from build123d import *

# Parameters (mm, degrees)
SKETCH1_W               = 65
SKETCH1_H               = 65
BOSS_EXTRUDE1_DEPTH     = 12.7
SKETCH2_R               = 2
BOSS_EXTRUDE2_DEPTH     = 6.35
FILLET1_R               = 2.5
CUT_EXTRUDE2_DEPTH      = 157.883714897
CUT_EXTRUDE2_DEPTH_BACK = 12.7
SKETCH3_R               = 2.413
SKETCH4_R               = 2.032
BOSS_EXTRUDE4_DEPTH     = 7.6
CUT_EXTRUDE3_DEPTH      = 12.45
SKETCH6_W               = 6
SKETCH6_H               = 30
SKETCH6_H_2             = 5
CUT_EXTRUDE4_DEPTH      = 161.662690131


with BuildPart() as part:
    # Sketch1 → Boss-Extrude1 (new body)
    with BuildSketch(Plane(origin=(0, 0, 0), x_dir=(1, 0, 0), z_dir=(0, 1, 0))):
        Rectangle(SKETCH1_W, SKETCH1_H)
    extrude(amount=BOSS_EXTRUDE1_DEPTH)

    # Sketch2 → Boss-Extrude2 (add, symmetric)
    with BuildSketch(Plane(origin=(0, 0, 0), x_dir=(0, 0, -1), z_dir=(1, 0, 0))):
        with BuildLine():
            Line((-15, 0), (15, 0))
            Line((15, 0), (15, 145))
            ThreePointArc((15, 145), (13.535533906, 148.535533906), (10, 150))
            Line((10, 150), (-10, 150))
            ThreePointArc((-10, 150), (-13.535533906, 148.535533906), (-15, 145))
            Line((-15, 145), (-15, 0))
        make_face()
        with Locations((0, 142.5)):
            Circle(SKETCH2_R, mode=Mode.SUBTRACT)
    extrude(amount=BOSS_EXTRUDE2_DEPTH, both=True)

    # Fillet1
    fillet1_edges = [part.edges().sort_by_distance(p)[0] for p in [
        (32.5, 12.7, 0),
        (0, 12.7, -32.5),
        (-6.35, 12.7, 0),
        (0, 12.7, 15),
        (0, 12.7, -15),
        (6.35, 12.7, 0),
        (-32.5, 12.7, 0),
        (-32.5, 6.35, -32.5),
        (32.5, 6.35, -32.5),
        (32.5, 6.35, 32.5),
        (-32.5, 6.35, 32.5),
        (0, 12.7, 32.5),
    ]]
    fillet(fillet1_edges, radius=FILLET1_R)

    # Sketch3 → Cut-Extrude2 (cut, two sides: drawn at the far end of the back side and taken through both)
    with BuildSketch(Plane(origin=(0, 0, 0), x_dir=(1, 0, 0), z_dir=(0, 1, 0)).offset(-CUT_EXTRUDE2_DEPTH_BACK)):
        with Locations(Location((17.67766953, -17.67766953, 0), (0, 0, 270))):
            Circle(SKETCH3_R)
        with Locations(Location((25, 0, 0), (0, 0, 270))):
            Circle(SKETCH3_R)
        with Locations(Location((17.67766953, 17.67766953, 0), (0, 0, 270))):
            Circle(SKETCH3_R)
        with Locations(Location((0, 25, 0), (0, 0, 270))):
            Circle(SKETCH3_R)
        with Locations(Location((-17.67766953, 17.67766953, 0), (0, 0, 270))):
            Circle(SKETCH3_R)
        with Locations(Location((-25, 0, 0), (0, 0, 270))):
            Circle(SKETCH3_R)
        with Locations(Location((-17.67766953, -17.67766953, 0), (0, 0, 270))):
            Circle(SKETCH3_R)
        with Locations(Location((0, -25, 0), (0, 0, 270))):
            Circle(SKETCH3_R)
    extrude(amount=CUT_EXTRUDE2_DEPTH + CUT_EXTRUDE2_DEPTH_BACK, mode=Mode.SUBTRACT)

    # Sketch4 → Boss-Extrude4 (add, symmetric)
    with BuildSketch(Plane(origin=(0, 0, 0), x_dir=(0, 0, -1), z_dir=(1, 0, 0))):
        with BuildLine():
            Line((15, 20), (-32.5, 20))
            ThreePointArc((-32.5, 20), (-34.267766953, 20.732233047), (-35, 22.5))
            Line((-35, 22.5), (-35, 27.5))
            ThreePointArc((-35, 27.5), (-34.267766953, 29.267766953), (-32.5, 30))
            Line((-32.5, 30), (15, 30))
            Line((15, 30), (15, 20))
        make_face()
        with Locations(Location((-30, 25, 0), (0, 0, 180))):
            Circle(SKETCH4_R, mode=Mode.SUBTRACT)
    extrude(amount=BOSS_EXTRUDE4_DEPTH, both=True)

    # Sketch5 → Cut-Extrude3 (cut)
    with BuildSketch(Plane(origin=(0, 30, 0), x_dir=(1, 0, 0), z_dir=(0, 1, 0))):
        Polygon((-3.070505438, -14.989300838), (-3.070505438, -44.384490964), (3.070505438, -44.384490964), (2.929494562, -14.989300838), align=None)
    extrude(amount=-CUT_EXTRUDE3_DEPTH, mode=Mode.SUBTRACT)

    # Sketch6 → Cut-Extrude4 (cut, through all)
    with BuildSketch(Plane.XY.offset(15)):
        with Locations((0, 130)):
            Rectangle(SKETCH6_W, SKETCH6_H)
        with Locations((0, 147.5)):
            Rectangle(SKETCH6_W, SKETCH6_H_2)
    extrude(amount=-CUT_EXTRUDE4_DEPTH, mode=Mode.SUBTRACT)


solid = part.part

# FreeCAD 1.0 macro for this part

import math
import FreeCAD as App
import Part
import Sketcher


def edges_at(feature, points):
    """Names of the edges that pass closest to the given points."""
    edges = feature.Shape.Edges
    near = lambda p: min(range(len(edges)), key=lambda i: edges[i].distToShape(Part.Vertex(*p))[0])
    return sorted({f"Edge{near(p) + 1}" for p in points})

doc = App.newDocument("Part")
body = doc.addObject("PartDesign::Body", "Body")

sketch1 = body.newObject("Sketcher::SketchObject", "Sketch")
sketch1.AttachmentSupport = (doc.getObject("XZ_Plane"), [""])
sketch1.MapMode = "FlatFace"
sketch1.addGeometry(Part.LineSegment(App.Vector(-32, -32, 0), App.Vector(-32, 32, 0)), False)
sketch1.addGeometry(Part.LineSegment(App.Vector(-32, 32, 0), App.Vector(32, 32, 0)), False)
sketch1.addGeometry(Part.LineSegment(App.Vector(32, 32, 0), App.Vector(32, -32, 0)), False)
sketch1.addGeometry(Part.LineSegment(App.Vector(32, -32, 0), App.Vector(-32, -32, 0)), False)
sketch1.addConstraint(Sketcher.Constraint("Coincident", 0, 2, 1, 1))
sketch1.addConstraint(Sketcher.Constraint("Coincident", 1, 2, 2, 1))
sketch1.addConstraint(Sketcher.Constraint("Coincident", 2, 2, 3, 1))
sketch1.addConstraint(Sketcher.Constraint("Coincident", 3, 2, 0, 1))
sketch1.addConstraint(Sketcher.Constraint("Vertical", 0))
sketch1.addConstraint(Sketcher.Constraint("Horizontal", 1))
sketch1.addConstraint(Sketcher.Constraint("Vertical", 2))
sketch1.addConstraint(Sketcher.Constraint("Horizontal", 3))
sketch1.addConstraint(Sketcher.Constraint("Symmetric", 0, 2, 2, 2, -1, 1))
sketch1.addConstraint(Sketcher.Constraint("Equal", 3, 0))
sketch1.addConstraint(Sketcher.Constraint("DistanceX", 1, 1, 1, 2, 65.0))
pad1 = body.newObject("PartDesign::Pad", "Pad")
pad1.Profile = sketch1
pad1.Length = 12.7
pad1.Reversed = True

sketch2 = body.newObject("Sketcher::SketchObject", "Sketch001")
sketch2.AttachmentSupport = (doc.getObject("YZ_Plane"), [""])
sketch2.MapMode = "FlatFace"
sketch2.addGeometry(Part.LineSegment(App.Vector(0, 15, 0), App.Vector(0, -15, 0)), False)
sketch2.addGeometry(Part.LineSegment(App.Vector(0, -15, 0), App.Vector(145, -15, 0)), False)
sketch2.addGeometry(Part.ArcOfCircle(Part.Circle(App.Vector(145, -10, 0), App.Vector(0, 0, 1), 5), math.radians(-90), math.radians(0)), False)
sketch2.addGeometry(Part.LineSegment(App.Vector(150, -10, 0), App.Vector(150, 10, 0)), False)
sketch2.addGeometry(Part.ArcOfCircle(Part.Circle(App.Vector(145, 10, 0), App.Vector(0, 0, 1), 5), math.radians(0), math.radians(90)), False)
sketch2.addGeometry(Part.LineSegment(App.Vector(145, 15, 0), App.Vector(0, 15, 0)), False)
sketch2.addGeometry(Part.Circle(App.Vector(142.5, 0, 0), App.Vector(0, 0, 1), 2), False)
sketch2.addConstraint(Sketcher.Constraint("Coincident", 0, 2, 1, 1))
sketch2.addConstraint(Sketcher.Constraint("Tangent", 1, 2, 2, 1))
sketch2.addConstraint(Sketcher.Constraint("Tangent", 2, 2, 3, 1))
sketch2.addConstraint(Sketcher.Constraint("Tangent", 3, 2, 4, 1))
sketch2.addConstraint(Sketcher.Constraint("Tangent", 4, 2, 5, 1))
sketch2.addConstraint(Sketcher.Constraint("Coincident", 5, 2, 0, 1))
sketch2.addConstraint(Sketcher.Constraint("Vertical", 0))
sketch2.addConstraint(Sketcher.Constraint("Horizontal", 1))
sketch2.addConstraint(Sketcher.Constraint("Vertical", 3))
sketch2.addConstraint(Sketcher.Constraint("Horizontal", 5))
sketch2.addConstraint(Sketcher.Constraint("Equal", 2, 4))
sketch2.addConstraint(Sketcher.Constraint("Symmetric", 0, 2, 5, 2, -1, 1))
sketch2.addConstraint(Sketcher.Constraint("PointOnObject", 6, 3, -1))
sketch2.addConstraint(Sketcher.Constraint("Diameter", 6, 4.0))
sketch2.addConstraint(Sketcher.Constraint("Radius", 2, 5.0))
sketch2.addConstraint(Sketcher.Constraint("DistanceX", 1, 1, 1, 2, 145.0))
sketch2.addConstraint(Sketcher.Constraint("DistanceY", 0, 2, 0, 1, 30.0))
sketch2.addConstraint(Sketcher.Constraint("DistanceX", -1, 1, 6, 3, 142.5))
pad2 = body.newObject("PartDesign::Pad", "Pad001")
pad2.Profile = sketch2
pad2.Length = 12.7
pad2.Midplane = True
doc.recompute()

fillet = body.newObject("PartDesign::Fillet", "Fillet")
fillet.Base = (pad2, edges_at(pad2, [
    (32.5, 12.7, 0),
    (0, 12.7, -32.5),
    (-6.35, 12.7, 0),
    (0, 12.7, 15),
    (0, 12.7, -15),
    (6.35, 12.7, 0),
    (-32.5, 12.7, 0),
    (-32.5, 6.35, -32.5),
    (32.5, 6.35, -32.5),
    (32.5, 6.35, 32.5),
    (-32.5, 6.35, 32.5),
    (0, 12.7, 32.5),
]))
fillet.Radius = 2.5

sketch3 = body.newObject("Sketcher::SketchObject", "Sketch002")
sketch3.AttachmentSupport = (doc.getObject("XZ_Plane"), [""])
sketch3.MapMode = "FlatFace"
sketch3.addGeometry(Part.Circle(App.Vector(17.7, 17.7, 0), App.Vector(0, 0, 1), 2.4), False)
sketch3.addGeometry(Part.Circle(App.Vector(25, 0, 0), App.Vector(0, 0, 1), 2.4), False)
sketch3.addGeometry(Part.Circle(App.Vector(17.7, -17.7, 0), App.Vector(0, 0, 1), 2.4), False)
sketch3.addGeometry(Part.Circle(App.Vector(0, -25, 0), App.Vector(0, 0, 1), 2.4), False)
sketch3.addGeometry(Part.Circle(App.Vector(-17.7, -17.7, 0), App.Vector(0, 0, 1), 2.4), False)
sketch3.addGeometry(Part.Circle(App.Vector(-25, 0, 0), App.Vector(0, 0, 1), 2.4), False)
sketch3.addGeometry(Part.Circle(App.Vector(-17.7, 17.7, 0), App.Vector(0, 0, 1), 2.4), False)
sketch3.addGeometry(Part.Circle(App.Vector(0, 25, 0), App.Vector(0, 0, 1), 2.4), False)
sketch3.addConstraint(Sketcher.Constraint("Equal", 0, 1))
sketch3.addConstraint(Sketcher.Constraint("Equal", 1, 2))
sketch3.addConstraint(Sketcher.Constraint("Equal", 2, 3))
sketch3.addConstraint(Sketcher.Constraint("Equal", 3, 4))
sketch3.addConstraint(Sketcher.Constraint("Equal", 4, 5))
sketch3.addConstraint(Sketcher.Constraint("Equal", 5, 6))
sketch3.addConstraint(Sketcher.Constraint("Equal", 6, 7))
sketch3.addConstraint(Sketcher.Constraint("Symmetric", 0, 3, 4, 3, -1, 1))
sketch3.addConstraint(Sketcher.Constraint("Symmetric", 1, 3, 5, 3, -1, 1))
sketch3.addConstraint(Sketcher.Constraint("Symmetric", 2, 3, 6, 3, -1, 1))
sketch3.addConstraint(Sketcher.Constraint("Symmetric", 3, 3, 7, 3, -1, 1))
sketch3.addConstraint(Sketcher.Constraint("Symmetric", 2, 3, 4, 3, -2))
sketch3.addConstraint(Sketcher.Constraint("PointOnObject", 1, 3, -1))
sketch3.addConstraint(Sketcher.Constraint("PointOnObject", 3, 3, -2))
sketch3.addConstraint(Sketcher.Constraint("Diameter", 0, 4.826))
sketch3.addConstraint(Sketcher.Constraint("DistanceX", -1, 1, 1, 3, 25.0))
sketch3.addConstraint(Sketcher.Constraint("DistanceY", 3, 3, -1, 1, 25.0))
sketch3.addConstraint(Sketcher.Constraint("DistanceX", -1, 1, 0, 3, 17.67767))
sketch3.addConstraint(Sketcher.Constraint("DistanceY", -1, 1, 0, 3, 17.67767))
pocket1 = body.newObject("PartDesign::Pocket", "Pocket")
pocket1.Profile = sketch3
pocket1.Type = "ThroughAll"
pocket1.Midplane = True

sketch4 = body.newObject("Sketcher::SketchObject", "Sketch003")
sketch4.AttachmentSupport = (doc.getObject("YZ_Plane"), [""])
sketch4.MapMode = "FlatFace"
sketch4.addGeometry(Part.LineSegment(App.Vector(20, 32.5, 0), App.Vector(20, -15, 0)), False)
sketch4.addGeometry(Part.LineSegment(App.Vector(20, -15, 0), App.Vector(30, -15, 0)), False)
sketch4.addGeometry(Part.LineSegment(App.Vector(30, -15, 0), App.Vector(30, 32.5, 0)), False)
sketch4.addGeometry(Part.ArcOfCircle(Part.Circle(App.Vector(27.5, 32.5, 0), App.Vector(0, 0, 1), 2.5), math.radians(0), math.radians(90)), False)
sketch4.addGeometry(Part.LineSegment(App.Vector(27.5, 35, 0), App.Vector(22.5, 35, 0)), False)
sketch4.addGeometry(Part.ArcOfCircle(Part.Circle(App.Vector(22.5, 32.5, 0), App.Vector(0, 0, 1), 2.5), math.radians(90), math.radians(180)), False)
sketch4.addGeometry(Part.Circle(App.Vector(25, 30, 0), App.Vector(0, 0, 1), 2), False)
sketch4.addConstraint(Sketcher.Constraint("Coincident", 0, 2, 1, 1))
sketch4.addConstraint(Sketcher.Constraint("Coincident", 1, 2, 2, 1))
sketch4.addConstraint(Sketcher.Constraint("Tangent", 2, 2, 3, 1))
sketch4.addConstraint(Sketcher.Constraint("Tangent", 3, 2, 4, 1))
sketch4.addConstraint(Sketcher.Constraint("Tangent", 4, 2, 5, 1))
sketch4.addConstraint(Sketcher.Constraint("Tangent", 5, 2, 0, 1))
sketch4.addConstraint(Sketcher.Constraint("Vertical", 0))
sketch4.addConstraint(Sketcher.Constraint("Horizontal", 1))
sketch4.addConstraint(Sketcher.Constraint("Vertical", 2))
sketch4.addConstraint(Sketcher.Constraint("Horizontal", 4))
sketch4.addConstraint(Sketcher.Constraint("Equal", 3, 5))
sketch4.addConstraint(Sketcher.Constraint("Radius", 3, 2.5))
sketch4.addConstraint(Sketcher.Constraint("DistanceX", 1, 1, 1, 2, 10.0))
sketch4.addConstraint(Sketcher.Constraint("Diameter", 6, 4.064))
sketch4.addConstraint(Sketcher.Constraint("DistanceY", 0, 2, 0, 1, 47.5))
sketch4.addConstraint(Sketcher.Constraint("DistanceX", -1, 1, 6, 3, 25.0))
sketch4.addConstraint(Sketcher.Constraint("DistanceY", -1, 1, 6, 3, 30.0))
sketch4.addConstraint(Sketcher.Constraint("DistanceX", -1, 1, 0, 2, 20.0))
sketch4.addConstraint(Sketcher.Constraint("DistanceY", 0, 2, -1, 1, 15.0))
pad3 = body.newObject("PartDesign::Pad", "Pad002")
pad3.Profile = sketch4
pad3.Length = 15.2
pad3.Midplane = True

sketch5 = body.newObject("Sketcher::SketchObject", "Sketch004")
sketch5.AttachmentSupport = (doc.getObject("XZ_Plane"), [""])
sketch5.MapMode = "FlatFace"
sketch5.AttachmentOffset = App.Placement(App.Vector(0, 0, -30), App.Rotation())
sketch5.addGeometry(Part.LineSegment(App.Vector(-3, 15, 0), App.Vector(-3, 44, 0)), False)
sketch5.addGeometry(Part.LineSegment(App.Vector(-3, 44, 0), App.Vector(3, 44, 0)), False)
sketch5.addGeometry(Part.LineSegment(App.Vector(3, 44, 0), App.Vector(3, 15, 0)), False)
sketch5.addGeometry(Part.LineSegment(App.Vector(3, 15, 0), App.Vector(-3, 15, 0)), False)
sketch5.addConstraint(Sketcher.Constraint("Coincident", 0, 2, 1, 1))
sketch5.addConstraint(Sketcher.Constraint("Coincident", 1, 2, 2, 1))
sketch5.addConstraint(Sketcher.Constraint("Coincident", 2, 2, 3, 1))
sketch5.addConstraint(Sketcher.Constraint("Coincident", 3, 2, 0, 1))
sketch5.addConstraint(Sketcher.Constraint("Vertical", 0))
sketch5.addConstraint(Sketcher.Constraint("Horizontal", 1))
sketch5.addConstraint(Sketcher.Constraint("Horizontal", 3))
sketch5.addConstraint(Sketcher.Constraint("DistanceX", 3, 2, 3, 1, 6.0))
sketch5.addConstraint(Sketcher.Constraint("DistanceX", 1, 1, 1, 2, 6.141011))
sketch5.addConstraint(Sketcher.Constraint("DistanceY", 0, 1, 0, 2, 29.39519))
sketch5.addConstraint(Sketcher.Constraint("DistanceY", -1, 1, 2, 2, 14.989301))
sketch5.addConstraint(Sketcher.Constraint("DistanceX", 0, 2, -1, 1, 3.070505))
pocket2 = body.newObject("PartDesign::Pocket", "Pocket001")
pocket2.Profile = sketch5
pocket2.Length = 12.45
pocket2.Reversed = True

sketch6 = body.newObject("Sketcher::SketchObject", "Sketch005")
sketch6.AttachmentSupport = (doc.getObject("XY_Plane"), [""])
sketch6.MapMode = "FlatFace"
sketch6.AttachmentOffset = App.Placement(App.Vector(0, 0, 15), App.Rotation())
sketch6.addGeometry(Part.LineSegment(App.Vector(-3, 115, 0), App.Vector(3, 115, 0)), False)
sketch6.addGeometry(Part.LineSegment(App.Vector(3, 115, 0), App.Vector(3, 150, 0)), False)
sketch6.addGeometry(Part.LineSegment(App.Vector(3, 150, 0), App.Vector(-3, 150, 0)), False)
sketch6.addGeometry(Part.LineSegment(App.Vector(-3, 150, 0), App.Vector(-3, 115, 0)), False)
sketch6.addConstraint(Sketcher.Constraint("Coincident", 0, 2, 1, 1))
sketch6.addConstraint(Sketcher.Constraint("Coincident", 1, 2, 2, 1))
sketch6.addConstraint(Sketcher.Constraint("Coincident", 2, 2, 3, 1))
sketch6.addConstraint(Sketcher.Constraint("Coincident", 3, 2, 0, 1))
sketch6.addConstraint(Sketcher.Constraint("Horizontal", 0))
sketch6.addConstraint(Sketcher.Constraint("Vertical", 1))
sketch6.addConstraint(Sketcher.Constraint("Horizontal", 2))
sketch6.addConstraint(Sketcher.Constraint("Vertical", 3))
sketch6.addConstraint(Sketcher.Constraint("DistanceX", 0, 1, 0, 2, 6.0))
sketch6.addConstraint(Sketcher.Constraint("DistanceY", 1, 1, 1, 2, 35.0))
sketch6.addConstraint(Sketcher.Constraint("DistanceX", -1, 1, 0, 2, 3.0))
sketch6.addConstraint(Sketcher.Constraint("DistanceY", -1, 1, 0, 2, 115.0))
pocket3 = body.newObject("PartDesign::Pocket", "Pocket002")
pocket3.Profile = sketch6
pocket3.Type = "ThroughAll"

doc.recompute()
